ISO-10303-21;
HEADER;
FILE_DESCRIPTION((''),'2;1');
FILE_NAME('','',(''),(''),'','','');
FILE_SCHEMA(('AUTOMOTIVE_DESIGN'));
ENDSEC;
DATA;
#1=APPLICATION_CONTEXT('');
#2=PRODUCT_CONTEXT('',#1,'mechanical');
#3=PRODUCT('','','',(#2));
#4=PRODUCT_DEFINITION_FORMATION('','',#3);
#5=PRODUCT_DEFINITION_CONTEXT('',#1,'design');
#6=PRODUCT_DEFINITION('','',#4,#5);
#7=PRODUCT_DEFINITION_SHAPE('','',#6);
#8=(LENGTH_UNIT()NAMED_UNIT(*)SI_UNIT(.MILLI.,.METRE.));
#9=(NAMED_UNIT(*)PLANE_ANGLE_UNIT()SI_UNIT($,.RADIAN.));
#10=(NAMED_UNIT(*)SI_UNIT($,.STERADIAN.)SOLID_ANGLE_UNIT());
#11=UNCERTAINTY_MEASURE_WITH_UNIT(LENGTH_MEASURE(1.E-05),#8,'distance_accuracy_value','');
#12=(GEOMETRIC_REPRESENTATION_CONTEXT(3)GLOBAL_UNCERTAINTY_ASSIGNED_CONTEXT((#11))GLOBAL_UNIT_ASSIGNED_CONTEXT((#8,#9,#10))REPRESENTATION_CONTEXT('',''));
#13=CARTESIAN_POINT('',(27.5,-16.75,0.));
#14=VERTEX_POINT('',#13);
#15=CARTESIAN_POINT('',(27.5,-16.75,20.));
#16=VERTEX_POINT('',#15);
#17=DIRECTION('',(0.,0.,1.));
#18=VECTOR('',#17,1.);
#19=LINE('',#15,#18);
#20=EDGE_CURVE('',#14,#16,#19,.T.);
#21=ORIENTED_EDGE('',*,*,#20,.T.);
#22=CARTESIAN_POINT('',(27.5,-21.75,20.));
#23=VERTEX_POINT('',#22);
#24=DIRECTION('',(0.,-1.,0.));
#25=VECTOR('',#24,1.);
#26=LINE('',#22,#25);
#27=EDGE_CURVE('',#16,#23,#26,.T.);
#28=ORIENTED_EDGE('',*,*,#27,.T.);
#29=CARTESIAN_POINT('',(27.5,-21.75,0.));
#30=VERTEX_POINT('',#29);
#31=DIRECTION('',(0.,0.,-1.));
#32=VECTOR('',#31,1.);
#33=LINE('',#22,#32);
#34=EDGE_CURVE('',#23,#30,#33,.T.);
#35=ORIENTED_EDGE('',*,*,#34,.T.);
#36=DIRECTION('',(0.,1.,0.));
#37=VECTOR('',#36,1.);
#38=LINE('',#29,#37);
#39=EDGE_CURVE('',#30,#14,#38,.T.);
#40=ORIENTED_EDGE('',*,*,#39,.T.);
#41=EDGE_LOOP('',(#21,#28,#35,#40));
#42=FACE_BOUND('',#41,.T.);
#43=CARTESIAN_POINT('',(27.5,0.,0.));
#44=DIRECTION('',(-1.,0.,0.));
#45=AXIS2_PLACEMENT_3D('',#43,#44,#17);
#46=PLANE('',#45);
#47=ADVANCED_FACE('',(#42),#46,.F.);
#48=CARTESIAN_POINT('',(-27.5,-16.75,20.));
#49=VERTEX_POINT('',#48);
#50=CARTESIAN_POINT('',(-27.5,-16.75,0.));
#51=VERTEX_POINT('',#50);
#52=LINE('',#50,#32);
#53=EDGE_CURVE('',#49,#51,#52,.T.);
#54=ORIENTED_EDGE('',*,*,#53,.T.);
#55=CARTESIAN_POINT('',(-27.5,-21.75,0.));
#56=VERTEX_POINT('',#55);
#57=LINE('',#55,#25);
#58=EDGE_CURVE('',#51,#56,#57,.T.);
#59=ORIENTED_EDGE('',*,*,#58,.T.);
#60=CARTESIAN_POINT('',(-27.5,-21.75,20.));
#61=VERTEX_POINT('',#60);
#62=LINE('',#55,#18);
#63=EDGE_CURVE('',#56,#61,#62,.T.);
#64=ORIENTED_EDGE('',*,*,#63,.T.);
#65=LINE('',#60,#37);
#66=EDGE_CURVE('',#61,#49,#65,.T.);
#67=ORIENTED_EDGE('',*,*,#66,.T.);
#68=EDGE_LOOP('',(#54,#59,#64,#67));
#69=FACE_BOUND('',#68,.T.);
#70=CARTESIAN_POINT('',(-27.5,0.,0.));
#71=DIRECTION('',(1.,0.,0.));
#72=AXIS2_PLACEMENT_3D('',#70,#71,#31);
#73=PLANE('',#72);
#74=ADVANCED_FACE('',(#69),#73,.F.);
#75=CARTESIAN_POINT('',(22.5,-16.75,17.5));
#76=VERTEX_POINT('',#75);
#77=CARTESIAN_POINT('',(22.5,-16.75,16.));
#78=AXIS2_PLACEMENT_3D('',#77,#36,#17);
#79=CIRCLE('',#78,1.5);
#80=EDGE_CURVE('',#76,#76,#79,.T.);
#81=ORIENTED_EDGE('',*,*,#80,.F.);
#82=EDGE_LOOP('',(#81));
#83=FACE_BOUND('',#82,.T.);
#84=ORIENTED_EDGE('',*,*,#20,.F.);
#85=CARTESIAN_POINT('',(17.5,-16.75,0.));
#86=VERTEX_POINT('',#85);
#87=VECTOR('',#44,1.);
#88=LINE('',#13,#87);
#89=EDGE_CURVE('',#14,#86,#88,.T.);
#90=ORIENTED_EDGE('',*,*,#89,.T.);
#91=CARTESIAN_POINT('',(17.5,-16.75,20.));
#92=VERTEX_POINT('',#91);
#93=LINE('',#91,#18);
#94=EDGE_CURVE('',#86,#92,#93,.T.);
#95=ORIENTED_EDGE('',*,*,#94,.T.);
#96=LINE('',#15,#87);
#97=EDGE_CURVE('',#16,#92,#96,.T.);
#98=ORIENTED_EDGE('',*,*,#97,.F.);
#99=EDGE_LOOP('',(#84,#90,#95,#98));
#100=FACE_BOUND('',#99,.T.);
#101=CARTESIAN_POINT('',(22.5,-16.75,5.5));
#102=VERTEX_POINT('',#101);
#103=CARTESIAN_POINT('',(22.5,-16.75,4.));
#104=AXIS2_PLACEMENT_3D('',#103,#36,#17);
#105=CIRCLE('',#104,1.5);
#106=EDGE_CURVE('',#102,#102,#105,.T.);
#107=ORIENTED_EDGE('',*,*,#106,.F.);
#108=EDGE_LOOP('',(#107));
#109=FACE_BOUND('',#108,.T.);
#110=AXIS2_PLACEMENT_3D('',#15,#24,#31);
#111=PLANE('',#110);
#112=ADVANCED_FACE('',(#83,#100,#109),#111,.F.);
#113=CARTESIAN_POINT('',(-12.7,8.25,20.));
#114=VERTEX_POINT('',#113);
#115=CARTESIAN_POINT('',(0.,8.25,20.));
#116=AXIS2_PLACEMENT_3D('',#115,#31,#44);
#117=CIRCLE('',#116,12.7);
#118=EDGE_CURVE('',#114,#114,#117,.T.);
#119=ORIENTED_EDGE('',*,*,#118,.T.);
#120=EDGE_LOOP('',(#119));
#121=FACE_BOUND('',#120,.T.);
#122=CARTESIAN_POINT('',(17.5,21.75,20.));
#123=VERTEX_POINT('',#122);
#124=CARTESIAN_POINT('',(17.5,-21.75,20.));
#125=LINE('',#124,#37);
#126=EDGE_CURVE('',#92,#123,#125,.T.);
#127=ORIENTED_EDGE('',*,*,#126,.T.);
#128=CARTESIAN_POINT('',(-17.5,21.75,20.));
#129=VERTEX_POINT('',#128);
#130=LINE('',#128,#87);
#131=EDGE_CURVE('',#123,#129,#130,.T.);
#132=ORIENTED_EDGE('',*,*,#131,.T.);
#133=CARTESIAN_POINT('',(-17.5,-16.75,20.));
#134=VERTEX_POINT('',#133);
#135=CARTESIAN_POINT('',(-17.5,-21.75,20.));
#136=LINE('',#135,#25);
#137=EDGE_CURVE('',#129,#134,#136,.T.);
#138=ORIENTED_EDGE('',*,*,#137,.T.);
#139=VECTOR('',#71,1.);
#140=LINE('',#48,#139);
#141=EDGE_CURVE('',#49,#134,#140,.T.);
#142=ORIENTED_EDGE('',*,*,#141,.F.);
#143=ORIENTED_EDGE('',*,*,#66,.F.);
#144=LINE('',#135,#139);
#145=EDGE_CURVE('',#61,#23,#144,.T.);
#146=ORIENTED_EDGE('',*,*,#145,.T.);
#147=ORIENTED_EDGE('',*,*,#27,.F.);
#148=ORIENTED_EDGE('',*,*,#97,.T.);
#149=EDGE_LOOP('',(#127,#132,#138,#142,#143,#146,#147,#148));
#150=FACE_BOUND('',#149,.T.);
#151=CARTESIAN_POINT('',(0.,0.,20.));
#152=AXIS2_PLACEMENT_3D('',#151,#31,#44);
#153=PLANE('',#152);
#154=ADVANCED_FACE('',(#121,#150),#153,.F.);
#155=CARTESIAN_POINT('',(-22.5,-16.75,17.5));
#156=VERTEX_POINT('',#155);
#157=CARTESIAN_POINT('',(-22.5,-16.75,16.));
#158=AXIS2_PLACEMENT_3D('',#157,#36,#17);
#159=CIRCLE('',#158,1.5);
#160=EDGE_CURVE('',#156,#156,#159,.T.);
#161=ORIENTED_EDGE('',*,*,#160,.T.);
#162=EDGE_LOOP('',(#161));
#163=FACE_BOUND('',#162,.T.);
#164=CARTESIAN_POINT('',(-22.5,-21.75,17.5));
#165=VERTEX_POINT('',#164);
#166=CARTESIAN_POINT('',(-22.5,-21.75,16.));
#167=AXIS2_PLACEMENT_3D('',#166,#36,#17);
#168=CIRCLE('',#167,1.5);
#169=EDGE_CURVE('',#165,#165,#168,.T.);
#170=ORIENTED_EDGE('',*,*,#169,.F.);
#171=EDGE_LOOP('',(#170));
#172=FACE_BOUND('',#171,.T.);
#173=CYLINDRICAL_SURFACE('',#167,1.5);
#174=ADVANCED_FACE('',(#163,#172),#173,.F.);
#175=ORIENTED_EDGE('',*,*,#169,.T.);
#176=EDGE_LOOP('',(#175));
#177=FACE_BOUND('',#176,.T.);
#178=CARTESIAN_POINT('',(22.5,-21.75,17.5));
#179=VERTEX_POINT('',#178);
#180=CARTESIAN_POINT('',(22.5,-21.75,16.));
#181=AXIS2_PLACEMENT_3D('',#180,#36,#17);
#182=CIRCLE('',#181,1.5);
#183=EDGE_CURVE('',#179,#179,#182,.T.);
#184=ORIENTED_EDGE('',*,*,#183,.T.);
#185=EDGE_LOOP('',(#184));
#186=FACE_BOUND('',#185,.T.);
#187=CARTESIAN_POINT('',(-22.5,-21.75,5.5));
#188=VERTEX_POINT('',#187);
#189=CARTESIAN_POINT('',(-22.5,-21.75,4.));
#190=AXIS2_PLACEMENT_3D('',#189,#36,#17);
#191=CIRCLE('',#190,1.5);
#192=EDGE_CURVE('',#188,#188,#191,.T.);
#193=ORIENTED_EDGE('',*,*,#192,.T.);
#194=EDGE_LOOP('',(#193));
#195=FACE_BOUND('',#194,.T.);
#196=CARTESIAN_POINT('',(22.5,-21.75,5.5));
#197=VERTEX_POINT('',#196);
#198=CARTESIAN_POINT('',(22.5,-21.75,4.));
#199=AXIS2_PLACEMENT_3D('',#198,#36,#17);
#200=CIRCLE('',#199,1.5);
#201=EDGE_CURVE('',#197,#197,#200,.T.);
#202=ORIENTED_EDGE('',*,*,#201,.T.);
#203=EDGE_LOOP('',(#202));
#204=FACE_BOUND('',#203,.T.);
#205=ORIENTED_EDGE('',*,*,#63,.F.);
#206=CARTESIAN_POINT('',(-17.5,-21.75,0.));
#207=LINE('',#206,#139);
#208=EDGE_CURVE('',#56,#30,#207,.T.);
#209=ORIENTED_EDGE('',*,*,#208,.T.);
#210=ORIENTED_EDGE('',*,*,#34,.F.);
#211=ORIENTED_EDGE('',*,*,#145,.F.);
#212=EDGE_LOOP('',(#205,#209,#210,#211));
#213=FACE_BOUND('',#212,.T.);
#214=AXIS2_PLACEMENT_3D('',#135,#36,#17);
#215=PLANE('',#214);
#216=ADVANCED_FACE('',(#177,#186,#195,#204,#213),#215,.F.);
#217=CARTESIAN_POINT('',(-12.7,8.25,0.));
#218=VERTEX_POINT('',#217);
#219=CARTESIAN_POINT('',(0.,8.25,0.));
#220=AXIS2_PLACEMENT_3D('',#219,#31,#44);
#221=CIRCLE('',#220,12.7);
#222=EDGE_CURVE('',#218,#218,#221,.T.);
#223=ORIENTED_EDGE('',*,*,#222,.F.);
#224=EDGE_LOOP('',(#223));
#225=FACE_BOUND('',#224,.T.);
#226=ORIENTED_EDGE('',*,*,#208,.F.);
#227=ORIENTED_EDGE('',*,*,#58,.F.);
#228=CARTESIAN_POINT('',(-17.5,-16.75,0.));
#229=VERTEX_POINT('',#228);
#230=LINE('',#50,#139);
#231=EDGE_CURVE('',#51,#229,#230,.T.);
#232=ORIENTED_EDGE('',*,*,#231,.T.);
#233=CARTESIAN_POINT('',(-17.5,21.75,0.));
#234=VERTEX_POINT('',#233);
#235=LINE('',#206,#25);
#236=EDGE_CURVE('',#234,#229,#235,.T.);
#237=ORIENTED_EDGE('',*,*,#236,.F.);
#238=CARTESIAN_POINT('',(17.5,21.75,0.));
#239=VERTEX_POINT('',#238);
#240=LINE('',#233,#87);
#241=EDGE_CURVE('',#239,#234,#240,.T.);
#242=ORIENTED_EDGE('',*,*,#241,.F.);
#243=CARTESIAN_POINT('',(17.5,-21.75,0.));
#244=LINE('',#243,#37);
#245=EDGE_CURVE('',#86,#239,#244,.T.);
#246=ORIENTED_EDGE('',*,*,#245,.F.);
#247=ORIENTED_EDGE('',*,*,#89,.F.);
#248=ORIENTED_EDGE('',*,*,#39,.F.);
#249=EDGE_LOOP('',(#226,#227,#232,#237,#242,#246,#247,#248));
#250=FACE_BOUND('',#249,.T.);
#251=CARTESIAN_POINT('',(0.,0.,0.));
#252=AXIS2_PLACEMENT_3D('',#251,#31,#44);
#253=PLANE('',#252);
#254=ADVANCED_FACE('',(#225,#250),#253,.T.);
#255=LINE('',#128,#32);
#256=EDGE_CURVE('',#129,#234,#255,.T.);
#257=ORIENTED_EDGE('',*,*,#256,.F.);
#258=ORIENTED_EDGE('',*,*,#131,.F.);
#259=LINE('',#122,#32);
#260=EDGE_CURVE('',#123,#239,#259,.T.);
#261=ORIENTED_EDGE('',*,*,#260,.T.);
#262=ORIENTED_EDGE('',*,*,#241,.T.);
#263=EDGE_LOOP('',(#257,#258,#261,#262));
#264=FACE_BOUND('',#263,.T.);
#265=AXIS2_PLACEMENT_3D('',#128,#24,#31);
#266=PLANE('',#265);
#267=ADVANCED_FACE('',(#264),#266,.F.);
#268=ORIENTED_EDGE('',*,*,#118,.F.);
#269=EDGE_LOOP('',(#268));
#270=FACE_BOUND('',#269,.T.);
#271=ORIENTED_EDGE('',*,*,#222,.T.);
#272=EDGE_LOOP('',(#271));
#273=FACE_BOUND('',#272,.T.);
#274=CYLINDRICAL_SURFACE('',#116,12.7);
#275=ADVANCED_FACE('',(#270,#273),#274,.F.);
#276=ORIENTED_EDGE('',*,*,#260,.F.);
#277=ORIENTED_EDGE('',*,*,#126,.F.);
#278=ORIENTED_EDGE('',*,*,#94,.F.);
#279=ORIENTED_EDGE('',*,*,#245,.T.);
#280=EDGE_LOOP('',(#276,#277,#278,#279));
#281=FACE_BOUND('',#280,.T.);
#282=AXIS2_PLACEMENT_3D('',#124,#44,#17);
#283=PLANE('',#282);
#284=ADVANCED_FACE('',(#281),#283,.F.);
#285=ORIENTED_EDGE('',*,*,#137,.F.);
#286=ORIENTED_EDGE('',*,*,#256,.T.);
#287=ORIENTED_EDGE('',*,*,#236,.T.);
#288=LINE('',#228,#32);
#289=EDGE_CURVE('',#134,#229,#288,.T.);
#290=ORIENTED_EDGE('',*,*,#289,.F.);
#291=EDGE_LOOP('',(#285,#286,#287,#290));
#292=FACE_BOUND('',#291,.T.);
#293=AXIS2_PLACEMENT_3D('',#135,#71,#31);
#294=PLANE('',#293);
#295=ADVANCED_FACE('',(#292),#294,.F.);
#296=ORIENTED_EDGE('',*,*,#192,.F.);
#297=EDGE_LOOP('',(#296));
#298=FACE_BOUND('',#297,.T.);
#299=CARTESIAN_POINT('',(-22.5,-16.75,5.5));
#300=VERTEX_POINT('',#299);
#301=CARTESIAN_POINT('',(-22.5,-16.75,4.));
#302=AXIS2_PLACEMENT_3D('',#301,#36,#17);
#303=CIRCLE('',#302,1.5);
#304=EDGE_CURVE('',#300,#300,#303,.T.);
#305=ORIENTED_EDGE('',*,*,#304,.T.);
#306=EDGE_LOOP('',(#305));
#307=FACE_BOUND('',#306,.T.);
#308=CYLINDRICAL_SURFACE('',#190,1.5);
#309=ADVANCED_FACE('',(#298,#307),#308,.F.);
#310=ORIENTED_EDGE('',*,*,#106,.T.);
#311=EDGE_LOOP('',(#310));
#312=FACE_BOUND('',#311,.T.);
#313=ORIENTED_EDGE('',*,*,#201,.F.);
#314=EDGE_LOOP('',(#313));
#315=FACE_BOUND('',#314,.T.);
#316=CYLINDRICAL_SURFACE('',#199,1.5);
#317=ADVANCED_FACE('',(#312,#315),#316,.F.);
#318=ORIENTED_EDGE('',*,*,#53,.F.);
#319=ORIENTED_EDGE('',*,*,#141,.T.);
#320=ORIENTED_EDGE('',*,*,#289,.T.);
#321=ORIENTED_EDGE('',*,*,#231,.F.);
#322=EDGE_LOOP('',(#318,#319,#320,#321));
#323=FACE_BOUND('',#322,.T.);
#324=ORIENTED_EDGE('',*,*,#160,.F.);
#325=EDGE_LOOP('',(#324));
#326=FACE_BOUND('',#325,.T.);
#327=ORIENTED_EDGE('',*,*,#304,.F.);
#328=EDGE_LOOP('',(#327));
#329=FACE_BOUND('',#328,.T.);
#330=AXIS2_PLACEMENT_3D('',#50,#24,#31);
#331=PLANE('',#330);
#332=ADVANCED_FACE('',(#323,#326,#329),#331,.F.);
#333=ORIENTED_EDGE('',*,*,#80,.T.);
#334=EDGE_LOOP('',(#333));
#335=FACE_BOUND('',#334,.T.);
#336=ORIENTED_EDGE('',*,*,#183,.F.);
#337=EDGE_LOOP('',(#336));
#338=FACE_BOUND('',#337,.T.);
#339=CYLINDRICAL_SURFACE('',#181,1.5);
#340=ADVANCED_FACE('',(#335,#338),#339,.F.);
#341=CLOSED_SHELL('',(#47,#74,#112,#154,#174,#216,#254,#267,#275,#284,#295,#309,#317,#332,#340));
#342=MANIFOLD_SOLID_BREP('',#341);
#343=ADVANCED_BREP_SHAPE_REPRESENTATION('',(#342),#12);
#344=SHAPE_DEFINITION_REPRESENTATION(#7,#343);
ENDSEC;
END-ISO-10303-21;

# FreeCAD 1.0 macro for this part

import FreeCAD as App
import Part
import Sketcher
from FreeCAD import Vector

doc = App.newDocument("Part")
body = doc.addObject("PartDesign::Body", "Body")

sketch1 = body.newObject("Sketcher::SketchObject", "Sketch")
sketch1.AttachmentSupport = (doc.getObject("XY_Plane"), [""])
sketch1.MapMode = "FlatFace"
sketch1.addGeometry([
    Part.LineSegment(Vector(-17.5, 21.75, 0), Vector(-17.5, -21.75, 0)),
    Part.LineSegment(Vector(-17.5, -21.75, 0), Vector(17.5, -21.75, 0)),
    Part.LineSegment(Vector(17.5, -21.75, 0), Vector(17.5, 21.75, 0)),
    Part.LineSegment(Vector(17.5, 21.75, 0), Vector(-17.5, 21.75, 0)),
], False)
sketch1.addConstraint([
    Sketcher.Constraint("Coincident", 0, 2, 1, 1),
    Sketcher.Constraint("Coincident", 1, 2, 2, 1),
    Sketcher.Constraint("Coincident", 2, 2, 3, 1),
    Sketcher.Constraint("Coincident", 3, 2, 0, 1),
    Sketcher.Constraint("Vertical", 0),
    Sketcher.Constraint("Horizontal", 1),
    Sketcher.Constraint("Vertical", 2),
    Sketcher.Constraint("Horizontal", 3),
    Sketcher.Constraint("Symmetric", 0, 2, 2, 2, -1, 1),
    Sketcher.Constraint("DistanceX", 1, 1, 1, 2, 35.0),
    Sketcher.Constraint("DistanceY", 0, 2, 0, 1, 43.5),
])
pad1 = body.newObject("PartDesign::Pad", "Pad")
pad1.Profile = sketch1
pad1.Length = 20

sketch2 = body.newObject("Sketcher::SketchObject", "Sketch001")
sketch2.AttachmentSupport = (doc.getObject("YZ_Plane"), [""])
sketch2.MapMode = "FlatFace"
sketch2.AttachmentOffset = App.Placement(Vector(0, 0, 17.5), App.Rotation())
sketch2.addGeometry([
    Part.LineSegment(Vector(-16.75, 20, 0), Vector(-21.75, 20, 0)),
    Part.LineSegment(Vector(-21.75, 20, 0), Vector(-21.75, 0, 0)),
    Part.LineSegment(Vector(-21.75, 0, 0), Vector(-16.75, 0, 0)),
    Part.LineSegment(Vector(-16.75, 0, 0), Vector(-16.75, 20, 0)),
], False)
sketch2.addConstraint([
    Sketcher.Constraint("Coincident", 0, 2, 1, 1),
    Sketcher.Constraint("Coincident", 1, 2, 2, 1),
    Sketcher.Constraint("Coincident", 2, 2, 3, 1),
    Sketcher.Constraint("Coincident", 3, 2, 0, 1),
    Sketcher.Constraint("Horizontal", 0),
    Sketcher.Constraint("Vertical", 1),
    Sketcher.Constraint("Horizontal", 2),
    Sketcher.Constraint("Vertical", 3),
    Sketcher.Constraint("PointOnObject", 1, 2, -1),
    Sketcher.Constraint("DistanceX", 0, 2, 0, 1, 5.0),
    Sketcher.Constraint("DistanceY", 1, 2, 1, 1, 20.0),
    Sketcher.Constraint("DistanceX", 0, 2, -1, 1, 21.75),
])
pad2 = body.newObject("PartDesign::Pad", "Pad001")
pad2.Profile = sketch2
pad2.Length = 10

sketch3 = body.newObject("Sketcher::SketchObject", "Sketch002")
sketch3.AttachmentSupport = (doc.getObject("YZ_Plane"), [""])
sketch3.MapMode = "FlatFace"
sketch3.AttachmentOffset = App.Placement(Vector(0, 0, -17.5), App.Rotation())
sketch3.addGeometry([
    Part.LineSegment(Vector(-16.75, 0, 0), Vector(-21.75, 0, 0)),
    Part.LineSegment(Vector(-21.75, 0, 0), Vector(-21.75, 20, 0)),
    Part.LineSegment(Vector(-21.75, 20, 0), Vector(-16.75, 20, 0)),
    Part.LineSegment(Vector(-16.75, 20, 0), Vector(-16.75, 0, 0)),
], False)
sketch3.addConstraint([
    Sketcher.Constraint("Coincident", 0, 2, 1, 1),
    Sketcher.Constraint("Coincident", 1, 2, 2, 1),
    Sketcher.Constraint("Coincident", 2, 2, 3, 1),
    Sketcher.Constraint("Coincident", 3, 2, 0, 1),
    Sketcher.Constraint("Horizontal", 0),
    Sketcher.Constraint("Vertical", 1),
    Sketcher.Constraint("Horizontal", 2),
    Sketcher.Constraint("Vertical", 3),
    Sketcher.Constraint("PointOnObject", 0, 2, -1),
    Sketcher.Constraint("DistanceX", 0, 2, 0, 1, 5.0),
    Sketcher.Constraint("DistanceY", 1, 1, 1, 2, 20.0),
    Sketcher.Constraint("DistanceX", 0, 2, -1, 1, 21.75),
])
pad3 = body.newObject("PartDesign::Pad", "Pad002")
pad3.Profile = sketch3
pad3.Length = 10
pad3.Reversed = True

sketch4 = body.newObject("Sketcher::SketchObject", "Sketch003")
sketch4.AttachmentSupport = (doc.getObject("XZ_Plane"), [""])
sketch4.MapMode = "FlatFace"
sketch4.AttachmentOffset = App.Placement(Vector(0, 0, 16.75), App.Rotation())
sketch4.addGeometry([
    Part.Circle(Vector(-22.5, 16, 0), Vector(0, 0, 1), 1.5),
    Part.Circle(Vector(-22.5, 4, 0), Vector(0, 0, 1), 1.5),
    Part.Circle(Vector(22.5, 16, 0), Vector(0, 0, 1), 1.5),
    Part.Circle(Vector(22.5, 4, 0), Vector(0, 0, 1), 1.5),
], False)
sketch4.addConstraint([
    Sketcher.Constraint("Equal", 0, 1),
    Sketcher.Constraint("Equal", 1, 2),
    Sketcher.Constraint("Equal", 2, 3),
    Sketcher.Constraint("Symmetric", 0, 3, 2, 3, -2),
    Sketcher.Constraint("Symmetric", 1, 3, 3, 3, -2),
    Sketcher.Constraint("Vertical", 0, 3, 1, 3),
    Sketcher.Constraint("Diameter", 0, 3.0),
    Sketcher.Constraint("DistanceY", -1, 1, 0, 3, 16.0),
    Sketcher.Constraint("DistanceY", -1, 1, 1, 3, 4.0),
    Sketcher.Constraint("DistanceX", 0, 3, 2, 3, 45.0),
])
pocket1 = body.newObject("PartDesign::Pocket", "Pocket")
pocket1.Profile = sketch4
pocket1.Length = 5
pocket1.Reversed = True

sketch5 = body.newObject("Sketcher::SketchObject", "Sketch004")
sketch5.AttachmentSupport = (doc.getObject("XY_Plane"), [""])
sketch5.MapMode = "FlatFace"
sketch5.addGeometry(Part.Circle(Vector(0, 8.25, 0), Vector(0, 0, 1), 12.7), False)
sketch5.addConstraint([
    Sketcher.Constraint("PointOnObject", 0, 3, -2),
    Sketcher.Constraint("Diameter", 0, 25.4),
    Sketcher.Constraint("DistanceY", -1, 1, 0, 3, 8.25),
])
pocket2 = body.newObject("PartDesign::Pocket", "Pocket001")
pocket2.Profile = sketch5
pocket2.Length = 20
pocket2.Reversed = True

doc.recompute()
